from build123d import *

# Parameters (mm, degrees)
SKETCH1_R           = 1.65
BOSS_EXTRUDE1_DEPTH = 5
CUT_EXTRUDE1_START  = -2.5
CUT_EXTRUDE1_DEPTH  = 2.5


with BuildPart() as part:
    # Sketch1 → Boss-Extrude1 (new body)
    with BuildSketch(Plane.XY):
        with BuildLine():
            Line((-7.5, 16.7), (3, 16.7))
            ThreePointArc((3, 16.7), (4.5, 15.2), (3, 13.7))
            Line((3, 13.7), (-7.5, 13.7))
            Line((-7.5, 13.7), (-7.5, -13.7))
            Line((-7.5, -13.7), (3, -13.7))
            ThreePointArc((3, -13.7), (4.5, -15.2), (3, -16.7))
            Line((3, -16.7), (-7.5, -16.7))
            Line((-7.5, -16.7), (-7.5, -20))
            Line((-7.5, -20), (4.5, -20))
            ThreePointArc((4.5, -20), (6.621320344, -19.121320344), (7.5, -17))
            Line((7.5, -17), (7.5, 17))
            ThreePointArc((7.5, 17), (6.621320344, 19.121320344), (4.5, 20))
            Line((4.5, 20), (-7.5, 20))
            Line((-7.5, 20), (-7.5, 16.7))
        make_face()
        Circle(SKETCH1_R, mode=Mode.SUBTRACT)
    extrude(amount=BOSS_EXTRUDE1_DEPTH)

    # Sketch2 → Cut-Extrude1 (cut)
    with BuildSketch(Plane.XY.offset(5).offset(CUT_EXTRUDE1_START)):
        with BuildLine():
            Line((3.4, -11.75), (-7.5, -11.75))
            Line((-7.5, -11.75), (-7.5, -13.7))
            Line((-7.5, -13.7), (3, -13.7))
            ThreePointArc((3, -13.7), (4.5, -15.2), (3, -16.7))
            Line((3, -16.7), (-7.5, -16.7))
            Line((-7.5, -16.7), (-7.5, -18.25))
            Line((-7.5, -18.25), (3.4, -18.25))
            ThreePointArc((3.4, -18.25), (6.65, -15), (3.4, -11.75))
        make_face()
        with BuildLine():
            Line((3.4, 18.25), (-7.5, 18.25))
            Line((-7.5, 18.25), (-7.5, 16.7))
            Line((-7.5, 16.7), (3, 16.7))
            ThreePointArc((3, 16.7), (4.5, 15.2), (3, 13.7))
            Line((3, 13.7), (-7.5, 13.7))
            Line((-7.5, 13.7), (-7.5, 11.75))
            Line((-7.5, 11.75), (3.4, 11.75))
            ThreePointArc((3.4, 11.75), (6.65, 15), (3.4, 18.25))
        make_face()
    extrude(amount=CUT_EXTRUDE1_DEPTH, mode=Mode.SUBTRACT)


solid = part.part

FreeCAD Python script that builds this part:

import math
import FreeCAD as App
import Part
import Sketcher

V = App.Vector
Q = App.Units.Quantity

doc = App.newDocument("Part")
params = doc.addObject("Spreadsheet::Sheet", "Params")
for row, (alias, value) in enumerate([
    ("sketch1_radius", "3 mm"),
    ("sketch1_diameter", "3.3 mm"),
    ("sketch1_radius2", "1.5 mm"),
    ("sketch1_width", "12 mm"),
    ("sketch1_height", "34 mm"),
    ("pad1_length", "5 mm"),
    ("sketch2_radius", "1.5 mm"),
    ("sketch2_radius2", "3.25 mm"),
    ("sketch2_width", "10.9 mm"),
    ("sketch2_width2", "10.5 mm"),
    ("sketch2_height", "1.95 mm"),
    ("pocket1_length", "2.5 mm"),
], start=1):
    params.set(f"A{row}", alias)
    params.set(f"B{row}", "=" + value)
    params.setAlias(f"B{row}", alias)

body = doc.addObject("PartDesign::Body", "Body")

# Sketch on XY plane
sketch1 = doc.addObject("Sketcher::SketchObject", "Sketch")
body.addObject(sketch1)
sketch1.AttachmentSupport = (doc.XY_Plane, [""])
sketch1.MapMode = "FlatFace"
sketch1.addGeometry(Part.LineSegment(V(-7.5, 16.7, 0), V(3, 16.7, 0)), False)
sketch1.addGeometry(Part.ArcOfCircle(Part.Circle(V(3, 15.2, 0), V(0, 0, 1), 1.5), math.radians(-90), math.radians(90)), False)
sketch1.addGeometry(Part.LineSegment(V(3, 13.7, 0), V(-7.5, 13.7, 0)), False)
sketch1.addGeometry(Part.LineSegment(V(-7.5, 13.7, 0), V(-7.5, -13.7, 0)), False)
sketch1.addGeometry(Part.LineSegment(V(-7.5, -13.7, 0), V(3, -13.7, 0)), False)
sketch1.addGeometry(Part.ArcOfCircle(Part.Circle(V(3, -15.2, 0), V(0, 0, 1), 1.5), math.radians(-90), math.radians(90)), False)
sketch1.addGeometry(Part.LineSegment(V(3, -16.7, 0), V(-7.5, -16.7, 0)), False)
sketch1.addGeometry(Part.LineSegment(V(-7.5, -16.7, 0), V(-7.5, -20, 0)), False)
sketch1.addGeometry(Part.LineSegment(V(-7.5, -20, 0), V(4.5, -20, 0)), False)
sketch1.addGeometry(Part.ArcOfCircle(Part.Circle(V(4.5, -17, 0), V(0, 0, 1), 3), math.radians(-90), math.radians(0)), False)
sketch1.addGeometry(Part.LineSegment(V(7.5, -17, 0), V(7.5, 17, 0)), False)
sketch1.addGeometry(Part.ArcOfCircle(Part.Circle(V(4.5, 17, 0), V(0, 0, 1), 3), math.radians(0), math.radians(90)), False)
sketch1.addGeometry(Part.LineSegment(V(4.5, 20, 0), V(-7.5, 20, 0)), False)
sketch1.addGeometry(Part.LineSegment(V(-7.5, 20, 0), V(-7.5, 16.7, 0)), False)
sketch1.addGeometry(Part.Circle(V(0, 0, 0), V(0, 0, 1), 1.6), False)
sketch1.addConstraint(Sketcher.Constraint("Tangent", 0, 2, 1, 2))
sketch1.addConstraint(Sketcher.Constraint("Tangent", 1, 1, 2, 1))
sketch1.addConstraint(Sketcher.Constraint("Coincident", 2, 2, 3, 1))
sketch1.addConstraint(Sketcher.Constraint("Coincident", 3, 2, 4, 1))
sketch1.addConstraint(Sketcher.Constraint("Tangent", 4, 2, 5, 2))
sketch1.addConstraint(Sketcher.Constraint("Tangent", 5, 1, 6, 1))
sketch1.addConstraint(Sketcher.Constraint("Coincident", 6, 2, 7, 1))
sketch1.addConstraint(Sketcher.Constraint("Coincident", 7, 2, 8, 1))
sketch1.addConstraint(Sketcher.Constraint("Tangent", 8, 2, 9, 1))
sketch1.addConstraint(Sketcher.Constraint("Tangent", 9, 2, 10, 1))
sketch1.addConstraint(Sketcher.Constraint("Tangent", 10, 2, 11, 1))
sketch1.addConstraint(Sketcher.Constraint("Tangent", 11, 2, 12, 1))
sketch1.addConstraint(Sketcher.Constraint("Coincident", 12, 2, 13, 1))
sketch1.addConstraint(Sketcher.Constraint("Coincident", 13, 2, 0, 1))
sketch1.addConstraint(Sketcher.Constraint("Horizontal", 0))
sketch1.addConstraint(Sketcher.Constraint("Horizontal", 2))
sketch1.addConstraint(Sketcher.Constraint("Vertical", 3))
sketch1.addConstraint(Sketcher.Constraint("Horizontal", 4))
sketch1.addConstraint(Sketcher.Constraint("Horizontal", 6))
sketch1.addConstraint(Sketcher.Constraint("Vertical", 7))
sketch1.addConstraint(Sketcher.Constraint("Horizontal", 8))
sketch1.addConstraint(Sketcher.Constraint("Vertical", 10))
sketch1.addConstraint(Sketcher.Constraint("Horizontal", 12))
sketch1.addConstraint(Sketcher.Constraint("Vertical", 13))
sketch1.addConstraint(Sketcher.Constraint("Coincident", 14, 3, -1, 1))
sketch1.addConstraint(Sketcher.Constraint("Equal", 1, 5))
sketch1.addConstraint(Sketcher.Constraint("Equal", 9, 11))
sketch1.addConstraint(Sketcher.Constraint("Symmetric", 1, 3, 5, 3, -1))
sketch1.addConstraint(Sketcher.Constraint("Symmetric", 7, 2, 12, 2, -1))
sketch1.addConstraint(Sketcher.Constraint("Vertical", 3, 2, 6, 2))
sketch1.addConstraint(Sketcher.Constraint("Radius", 9, Q("3 mm")))
sketch1.addConstraint(Sketcher.Constraint("Diameter", 14, Q("3.3 mm")))
sketch1.addConstraint(Sketcher.Constraint("Radius", 1, Q("1.5 mm")))
sketch1.addConstraint(Sketcher.Constraint("DistanceX", 8, 1, 8, 2, Q("12 mm")))
sketch1.addConstraint(Sketcher.Constraint("DistanceY", 10, 1, 10, 2, Q("34 mm")))
sketch1.addConstraint(Sketcher.Constraint("DistanceX", 0, 1, 0, 2, Q("10.5 mm")))
sketch1.addConstraint(Sketcher.Constraint("DistanceY", 3, 2, 3, 1, Q("27.4 mm")))
sketch1.addConstraint(Sketcher.Constraint("DistanceX", -1, 1, 1, 3, Q("3 mm")))
sketch1.setExpression("Constraints[30]", "Params.sketch1_radius")
sketch1.setExpression("Constraints[31]", "Params.sketch1_diameter")
sketch1.setExpression("Constraints[32]", "Params.sketch1_radius2")
sketch1.setExpression("Constraints[33]", "Params.sketch1_width")
sketch1.setExpression("Constraints[34]", "Params.sketch1_height")
pad1 = doc.addObject("PartDesign::Pad", "Pad")
body.addObject(pad1)
pad1.Profile = sketch1
pad1.setExpression("Length", "Params.pad1_length")

# Sketch on XY plane
sketch2 = doc.addObject("Sketcher::SketchObject", "Sketch001")
body.addObject(sketch2)
sketch2.AttachmentSupport = (doc.XY_Plane, [""])
sketch2.MapMode = "FlatFace"
sketch2.AttachmentOffset = App.Placement(V(0, 0, 2.5), App.Rotation())
sketch2.addGeometry(Part.LineSegment(V(3.4, -11.8, 0), V(-7.5, -11.8, 0)), False)
sketch2.addGeometry(Part.LineSegment(V(-7.5, -11.8, 0), V(-7.5, -13.7, 0)), False)
sketch2.addGeometry(Part.LineSegment(V(-7.5, -13.7, 0), V(3, -13.7, 0)), False)
sketch2.addGeometry(Part.ArcOfCircle(Part.Circle(V(3, -15.2, 0), V(0, 0, 1), 1.5), math.radians(-90), math.radians(90)), False)
sketch2.addGeometry(Part.LineSegment(V(3, -16.7, 0), V(-7.5, -16.7, 0)), False)
sketch2.addGeometry(Part.LineSegment(V(-7.5, -16.7, 0), V(-7.5, -18.2, 0)), False)
sketch2.addGeometry(Part.LineSegment(V(-7.5, -18.2, 0), V(3.4, -18.2, 0)), False)
sketch2.addGeometry(Part.ArcOfCircle(Part.Circle(V(3.4, -15, 0), V(0, 0, 1), 3.2), math.radians(-90), math.radians(90)), False)
sketch2.addGeometry(Part.LineSegment(V(3.4, 18.2, 0), V(-7.5, 18.2, 0)), False)
sketch2.addGeometry(Part.LineSegment(V(-7.5, 18.2, 0), V(-7.5, 16.7, 0)), False)
sketch2.addGeometry(Part.LineSegment(V(-7.5, 16.7, 0), V(3, 16.7, 0)), False)
sketch2.addGeometry(Part.ArcOfCircle(Part.Circle(V(3, 15.2, 0), V(0, 0, 1), 1.5), math.radians(-90), math.radians(90)), False)
sketch2.addGeometry(Part.LineSegment(V(3, 13.7, 0), V(-7.5, 13.7, 0)), False)
sketch2.addGeometry(Part.LineSegment(V(-7.5, 13.7, 0), V(-7.5, 11.8, 0)), False)
sketch2.addGeometry(Part.LineSegment(V(-7.5, 11.8, 0), V(3.4, 11.8, 0)), False)
sketch2.addGeometry(Part.ArcOfCircle(Part.Circle(V(3.4, 15, 0), V(0, 0, 1), 3.2), math.radians(-90), math.radians(90)), False)
sketch2.addConstraint(Sketcher.Constraint("Coincident", 0, 2, 1, 1))
sketch2.addConstraint(Sketcher.Constraint("Coincident", 1, 2, 2, 1))
sketch2.addConstraint(Sketcher.Constraint("Tangent", 2, 2, 3, 2))
sketch2.addConstraint(Sketcher.Constraint("Tangent", 3, 1, 4, 1))
sketch2.addConstraint(Sketcher.Constraint("Coincident", 4, 2, 5, 1))
sketch2.addConstraint(Sketcher.Constraint("Coincident", 5, 2, 6, 1))
sketch2.addConstraint(Sketcher.Constraint("Tangent", 6, 2, 7, 1))
sketch2.addConstraint(Sketcher.Constraint("Tangent", 7, 2, 0, 1))
sketch2.addConstraint(Sketcher.Constraint("Coincident", 8, 2, 9, 1))
sketch2.addConstraint(Sketcher.Constraint("Coincident", 9, 2, 10, 1))
sketch2.addConstraint(Sketcher.Constraint("Tangent", 10, 2, 11, 2))
sketch2.addConstraint(Sketcher.Constraint("Tangent", 11, 1, 12, 1))
sketch2.addConstraint(Sketcher.Constraint("Coincident", 12, 2, 13, 1))
sketch2.addConstraint(Sketcher.Constraint("Coincident", 13, 2, 14, 1))
sketch2.addConstraint(Sketcher.Constraint("Tangent", 14, 2, 15, 1))
sketch2.addConstraint(Sketcher.Constraint("Tangent", 15, 2, 8, 1))
sketch2.addConstraint(Sketcher.Constraint("Horizontal", 0))
sketch2.addConstraint(Sketcher.Constraint("Vertical", 1))
sketch2.addConstraint(Sketcher.Constraint("Horizontal", 2))
sketch2.addConstraint(Sketcher.Constraint("Horizontal", 4))
sketch2.addConstraint(Sketcher.Constraint("Vertical", 5))
sketch2.addConstraint(Sketcher.Constraint("Horizontal", 6))
sketch2.addConstraint(Sketcher.Constraint("Horizontal", 8))
sketch2.addConstraint(Sketcher.Constraint("Vertical", 9))
sketch2.addConstraint(Sketcher.Constraint("Horizontal", 10))
sketch2.addConstraint(Sketcher.Constraint("Horizontal", 12))
sketch2.addConstraint(Sketcher.Constraint("Vertical", 13))
sketch2.addConstraint(Sketcher.Constraint("Horizontal", 14))
sketch2.addConstraint(Sketcher.Constraint("Equal", 3, 11))
sketch2.addConstraint(Sketcher.Constraint("Equal", 7, 15))
sketch2.addConstraint(Sketcher.Constraint("Symmetric", 3, 3, 11, 3, -1))
sketch2.addConstraint(Sketcher.Constraint("Symmetric", 7, 3, 15, 3, -1))
sketch2.addConstraint(Sketcher.Constraint("Vertical", 1, 2, 4, 2))
sketch2.addConstraint(Sketcher.Constraint("Vertical", 5, 2, 8, 2))
sketch2.addConstraint(Sketcher.Constraint("Vertical", 9, 2, 12, 2))
sketch2.addConstraint(Sketcher.Constraint("Radius", 3, Q("1.5 mm")))
sketch2.addConstraint(Sketcher.Constraint("Radius", 7, Q("3.25 mm")))
sketch2.addConstraint(Sketcher.Constraint("DistanceX", 0, 2, 0, 1, Q("10.9 mm")))
sketch2.addConstraint(Sketcher.Constraint("DistanceX", 2, 1, 2, 2, Q("10.5 mm")))
sketch2.addConstraint(Sketcher.Constraint("DistanceX", -1, 1, 3, 3, Q("3 mm")))
sketch2.addConstraint(Sketcher.Constraint("DistanceY", 7, 3, -1, 1, Q("15 mm")))
sketch2.addConstraint(Sketcher.Constraint("DistanceY", 1, 2, 1, 1, Q("1.95 mm")))
sketch2.setExpression("Constraints[35]", "Params.sketch2_radius")
sketch2.setExpression("Constraints[36]", "Params.sketch2_radius2")
sketch2.setExpression("Constraints[37]", "Params.sketch2_width")
sketch2.setExpression("Constraints[38]", "Params.sketch2_width2")
sketch2.setExpression("Constraints[41]", "Params.sketch2_height")
pocket1 = doc.addObject("PartDesign::Pocket", "Pocket")
body.addObject(pocket1)
pocket1.Profile = sketch2
pocket1.setExpression("Length", "Params.pocket1_length")
pocket1.Reversed = True

doc.recompute()
